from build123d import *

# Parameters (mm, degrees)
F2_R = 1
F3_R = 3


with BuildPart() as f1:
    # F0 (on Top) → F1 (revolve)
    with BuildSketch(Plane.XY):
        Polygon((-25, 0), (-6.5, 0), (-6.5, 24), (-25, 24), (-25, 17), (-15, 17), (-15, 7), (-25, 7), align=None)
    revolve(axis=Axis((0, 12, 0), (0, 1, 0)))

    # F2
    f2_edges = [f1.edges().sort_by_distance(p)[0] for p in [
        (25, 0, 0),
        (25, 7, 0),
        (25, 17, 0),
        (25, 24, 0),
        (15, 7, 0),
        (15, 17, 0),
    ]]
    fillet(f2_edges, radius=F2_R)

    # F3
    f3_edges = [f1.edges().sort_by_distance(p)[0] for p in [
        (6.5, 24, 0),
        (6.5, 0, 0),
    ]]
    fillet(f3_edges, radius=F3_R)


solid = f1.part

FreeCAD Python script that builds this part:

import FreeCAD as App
import Part
import Sketcher
from FreeCAD import Vector
Q = App.Units.Quantity


def edges_at(feature, points):
    """Names of the edges that pass closest to the given points."""
    edges = feature.Shape.Edges
    near = lambda p: min(range(len(edges)), key=lambda i: edges[i].distToShape(Part.Vertex(*p))[0])
    return sorted({f"Edge{near(p) + 1}" for p in points})

doc = App.newDocument("Part")
body = doc.addObject("PartDesign::Body", "Body")

# Sketch on XY plane
sketch1 = body.newObject("Sketcher::SketchObject", "Sketch")
sketch1.AttachmentSupport = (doc.getObject("XY_Plane"), [""])
sketch1.MapMode = "FlatFace"
sketch1.addGeometry(Part.LineSegment(Vector(-25, 0, 0), Vector(-6, 0, 0)), False)
sketch1.addGeometry(Part.LineSegment(Vector(-6, 0, 0), Vector(-6, 24, 0)), False)
sketch1.addGeometry(Part.LineSegment(Vector(-6, 24, 0), Vector(-25, 24, 0)), False)
sketch1.addGeometry(Part.LineSegment(Vector(-25, 24, 0), Vector(-25, 17, 0)), False)
sketch1.addGeometry(Part.LineSegment(Vector(-25, 17, 0), Vector(-15, 17, 0)), False)
sketch1.addGeometry(Part.LineSegment(Vector(-15, 17, 0), Vector(-15, 7, 0)), False)
sketch1.addGeometry(Part.LineSegment(Vector(-15, 7, 0), Vector(-25, 7, 0)), False)
sketch1.addGeometry(Part.LineSegment(Vector(-25, 7, 0), Vector(-25, 0, 0)), False)
sketch1.addConstraint(Sketcher.Constraint("Coincident", 0, 2, 1, 1))
sketch1.addConstraint(Sketcher.Constraint("Coincident", 1, 2, 2, 1))
sketch1.addConstraint(Sketcher.Constraint("Coincident", 2, 2, 3, 1))
sketch1.addConstraint(Sketcher.Constraint("Coincident", 3, 2, 4, 1))
sketch1.addConstraint(Sketcher.Constraint("Coincident", 4, 2, 5, 1))
sketch1.addConstraint(Sketcher.Constraint("Coincident", 5, 2, 6, 1))
sketch1.addConstraint(Sketcher.Constraint("Coincident", 6, 2, 7, 1))
sketch1.addConstraint(Sketcher.Constraint("Coincident", 7, 2, 0, 1))
sketch1.addConstraint(Sketcher.Constraint("Horizontal", 0))
sketch1.addConstraint(Sketcher.Constraint("Vertical", 1))
sketch1.addConstraint(Sketcher.Constraint("Horizontal", 2))
sketch1.addConstraint(Sketcher.Constraint("Vertical", 3))
sketch1.addConstraint(Sketcher.Constraint("Horizontal", 4))
sketch1.addConstraint(Sketcher.Constraint("Vertical", 5))
sketch1.addConstraint(Sketcher.Constraint("Horizontal", 6))
sketch1.addConstraint(Sketcher.Constraint("Vertical", 7))
sketch1.addConstraint(Sketcher.Constraint("PointOnObject", 0, 2, -1))
sketch1.addConstraint(Sketcher.Constraint("Vertical", 3, 2, 6, 2))
sketch1.addConstraint(Sketcher.Constraint("Equal", 6, 5))
sketch1.addConstraint(Sketcher.Constraint("Equal", 3, 7))
sketch1.addConstraint(Sketcher.Constraint("DistanceX", 4, 1, 4, 2, Q("10 mm")))
sketch1.addConstraint(Sketcher.Constraint("DistanceY", 1, 1, 1, 2, Q("24 mm")))
sketch1.addConstraint(Sketcher.Constraint("DistanceX", 0, 1, 0, 2, Q("18.5 mm")))
sketch1.addConstraint(Sketcher.Constraint("DistanceX", 2, 2, -1, 1, Q("25 mm")))
revolution = body.newObject("PartDesign::Revolution", "Revolution")
revolution.Profile = sketch1
revolution.ReferenceAxis = (sketch1, ["V_Axis"])
revolution.Angle = 360
doc.recompute()

fillet = body.newObject("PartDesign::Fillet", "Fillet")
fillet.Base = (revolution, edges_at(revolution, [
    (25, 0, 0),
    (25, 7, 0),
    (25, 17, 0),
    (25, 24, 0),
    (15, 7, 0),
    (15, 17, 0),
]))
fillet.Radius = 1
doc.recompute()

fillet2 = body.newObject("PartDesign::Fillet", "Fillet001")
fillet2.Base = (fillet, edges_at(fillet, [(6.5, 24, 0), (6.5, 0, 0)]))
fillet2.Radius = 3

doc.recompute()
